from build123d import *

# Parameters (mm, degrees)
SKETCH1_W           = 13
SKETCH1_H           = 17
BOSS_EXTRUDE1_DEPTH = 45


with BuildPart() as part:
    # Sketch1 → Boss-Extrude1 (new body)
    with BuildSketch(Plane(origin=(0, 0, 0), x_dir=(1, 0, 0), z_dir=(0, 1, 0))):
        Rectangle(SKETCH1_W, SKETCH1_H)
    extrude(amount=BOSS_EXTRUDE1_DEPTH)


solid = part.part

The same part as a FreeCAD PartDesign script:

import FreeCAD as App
import Part
import Sketcher

V = App.Vector


def add_polygon(sketch, points):
    """Adds a closed chain of lines whose ends are joined by coincident constraints."""
    first, n = sketch.GeometryCount, len(points)
    for a, b in zip(points, points[1:] + points[:1]):
        sketch.addGeometry(Part.LineSegment(App.Vector(*a, 0), App.Vector(*b, 0)), False)
    for i in range(n):
        sketch.addConstraint(Sketcher.Constraint("Coincident", first + i, 2, first + (i + 1) % n, 1))

doc = App.newDocument("Part")
body = doc.addObject("PartDesign::Body", "Body")

# Sketch on XZ plane
sketch1 = body.newObject("Sketcher::SketchObject", "Sketch")
sketch1.AttachmentSupport = (doc.getObject("XZ_Plane"), [""])
sketch1.MapMode = "FlatFace"
add_polygon(sketch1, [(-6.5, -8.5), (-6.5, 8.5), (6.5, 8.5), (6.5, -8.5)])  # lines 0-3
sketch1.addConstraint(Sketcher.Constraint("Vertical", 0))
sketch1.addConstraint(Sketcher.Constraint("Horizontal", 1))
sketch1.addConstraint(Sketcher.Constraint("Vertical", 2))
sketch1.addConstraint(Sketcher.Constraint("Horizontal", 3))
sketch1.addConstraint(Sketcher.Constraint("Symmetric", 0, 2, 2, 2, -1, 1))
sketch1.addConstraint(Sketcher.Constraint("DistanceX", 1, 1, 1, 2, 13.0))
sketch1.addConstraint(Sketcher.Constraint("DistanceY", 0, 1, 0, 2, 17.0))
pad1 = body.newObject("PartDesign::Pad", "Pad")
pad1.Profile = sketch1
pad1.Length = 45
pad1.Reversed = True

doc.recompute()
